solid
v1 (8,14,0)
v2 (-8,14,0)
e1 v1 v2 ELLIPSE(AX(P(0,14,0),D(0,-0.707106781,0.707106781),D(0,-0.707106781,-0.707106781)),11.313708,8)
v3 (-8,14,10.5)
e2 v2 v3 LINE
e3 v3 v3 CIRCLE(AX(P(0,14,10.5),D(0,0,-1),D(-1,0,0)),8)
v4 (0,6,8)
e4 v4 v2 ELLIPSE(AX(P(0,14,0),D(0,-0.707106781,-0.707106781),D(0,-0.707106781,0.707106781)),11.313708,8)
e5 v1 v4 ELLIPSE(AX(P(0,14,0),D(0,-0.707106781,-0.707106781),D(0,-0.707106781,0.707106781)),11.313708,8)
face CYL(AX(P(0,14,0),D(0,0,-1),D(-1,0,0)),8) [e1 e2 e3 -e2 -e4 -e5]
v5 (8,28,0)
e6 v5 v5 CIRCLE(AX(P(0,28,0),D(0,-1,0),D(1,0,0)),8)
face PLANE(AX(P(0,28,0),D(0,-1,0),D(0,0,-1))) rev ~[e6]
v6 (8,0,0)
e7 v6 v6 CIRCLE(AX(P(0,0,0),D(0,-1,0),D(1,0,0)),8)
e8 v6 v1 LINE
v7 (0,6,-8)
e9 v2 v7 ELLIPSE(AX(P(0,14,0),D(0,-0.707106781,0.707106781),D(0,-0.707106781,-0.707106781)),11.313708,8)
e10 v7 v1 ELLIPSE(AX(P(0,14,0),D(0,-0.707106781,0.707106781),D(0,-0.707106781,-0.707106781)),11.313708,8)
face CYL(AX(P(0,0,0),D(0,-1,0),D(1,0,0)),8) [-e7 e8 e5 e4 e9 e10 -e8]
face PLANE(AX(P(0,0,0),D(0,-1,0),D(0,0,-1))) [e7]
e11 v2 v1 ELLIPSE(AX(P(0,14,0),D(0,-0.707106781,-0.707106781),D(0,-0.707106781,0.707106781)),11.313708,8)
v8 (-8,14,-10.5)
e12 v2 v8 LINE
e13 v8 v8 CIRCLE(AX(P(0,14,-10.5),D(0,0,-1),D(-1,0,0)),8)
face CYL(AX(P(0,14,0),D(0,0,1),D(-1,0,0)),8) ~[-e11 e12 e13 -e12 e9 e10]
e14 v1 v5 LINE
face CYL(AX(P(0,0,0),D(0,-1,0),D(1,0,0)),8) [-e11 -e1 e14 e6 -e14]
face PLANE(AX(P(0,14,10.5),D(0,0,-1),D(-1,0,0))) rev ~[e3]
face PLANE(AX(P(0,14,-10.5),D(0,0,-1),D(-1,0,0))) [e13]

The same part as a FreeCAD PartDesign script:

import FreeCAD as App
import Part
import Sketcher

doc = App.newDocument("Part")
body = doc.addObject("PartDesign::Body", "Body")

# Sketch on XZ plane
sketch1 = body.newObject("Sketcher::SketchObject", "Sketch")
sketch1.AttachmentSupport = (doc.getObject("XZ_Plane"), [""])
sketch1.MapMode = "FlatFace"
sketch1.addGeometry(Part.Circle(App.Vector(0, 0, 0), App.Vector(0, 0, 1), 8), False)
sketch1.addConstraint([
    Sketcher.Constraint("Coincident", 0, 3, -1, 1),
    Sketcher.Constraint("Diameter", 0, 16.0),
])
pad1 = body.newObject("PartDesign::Pad", "Pad")
pad1.Profile = sketch1
pad1.Length = 28
pad1.Reversed = True

# Sketch on XY plane
sketch2 = body.newObject("Sketcher::SketchObject", "Sketch001")
sketch2.AttachmentSupport = (doc.getObject("XY_Plane"), [""])
sketch2.MapMode = "FlatFace"
sketch2.addGeometry(Part.Circle(App.Vector(0, 14, 0), App.Vector(0, 0, 1), 8), False)
sketch2.addConstraint([
    Sketcher.Constraint("PointOnObject", 0, 3, -2),
    Sketcher.Constraint("Diameter", 0, 16.0),
    Sketcher.Constraint("DistanceY", -1, 1, 0, 3, 14.0),
])
pad2 = body.newObject("PartDesign::Pad", "Pad001")
pad2.Profile = sketch2
pad2.Length = 10.5
pad2.Reversed = True

# Sketch on XY plane
sketch3 = body.newObject("Sketcher::SketchObject", "Sketch002")
sketch3.AttachmentSupport = (doc.getObject("XY_Plane"), [""])
sketch3.MapMode = "FlatFace"
sketch3.addGeometry(Part.Circle(App.Vector(0, 14, 0), App.Vector(0, 0, 1), 8), False)
sketch3.addConstraint([
    Sketcher.Constraint("PointOnObject", 0, 3, -2),
    Sketcher.Constraint("Diameter", 0, 16.0),
    Sketcher.Constraint("DistanceY", -1, 1, 0, 3, 14.0),
])
pad3 = body.newObject("PartDesign::Pad", "Pad002")
pad3.Profile = sketch3
pad3.Length = 10.5

doc.recompute()
